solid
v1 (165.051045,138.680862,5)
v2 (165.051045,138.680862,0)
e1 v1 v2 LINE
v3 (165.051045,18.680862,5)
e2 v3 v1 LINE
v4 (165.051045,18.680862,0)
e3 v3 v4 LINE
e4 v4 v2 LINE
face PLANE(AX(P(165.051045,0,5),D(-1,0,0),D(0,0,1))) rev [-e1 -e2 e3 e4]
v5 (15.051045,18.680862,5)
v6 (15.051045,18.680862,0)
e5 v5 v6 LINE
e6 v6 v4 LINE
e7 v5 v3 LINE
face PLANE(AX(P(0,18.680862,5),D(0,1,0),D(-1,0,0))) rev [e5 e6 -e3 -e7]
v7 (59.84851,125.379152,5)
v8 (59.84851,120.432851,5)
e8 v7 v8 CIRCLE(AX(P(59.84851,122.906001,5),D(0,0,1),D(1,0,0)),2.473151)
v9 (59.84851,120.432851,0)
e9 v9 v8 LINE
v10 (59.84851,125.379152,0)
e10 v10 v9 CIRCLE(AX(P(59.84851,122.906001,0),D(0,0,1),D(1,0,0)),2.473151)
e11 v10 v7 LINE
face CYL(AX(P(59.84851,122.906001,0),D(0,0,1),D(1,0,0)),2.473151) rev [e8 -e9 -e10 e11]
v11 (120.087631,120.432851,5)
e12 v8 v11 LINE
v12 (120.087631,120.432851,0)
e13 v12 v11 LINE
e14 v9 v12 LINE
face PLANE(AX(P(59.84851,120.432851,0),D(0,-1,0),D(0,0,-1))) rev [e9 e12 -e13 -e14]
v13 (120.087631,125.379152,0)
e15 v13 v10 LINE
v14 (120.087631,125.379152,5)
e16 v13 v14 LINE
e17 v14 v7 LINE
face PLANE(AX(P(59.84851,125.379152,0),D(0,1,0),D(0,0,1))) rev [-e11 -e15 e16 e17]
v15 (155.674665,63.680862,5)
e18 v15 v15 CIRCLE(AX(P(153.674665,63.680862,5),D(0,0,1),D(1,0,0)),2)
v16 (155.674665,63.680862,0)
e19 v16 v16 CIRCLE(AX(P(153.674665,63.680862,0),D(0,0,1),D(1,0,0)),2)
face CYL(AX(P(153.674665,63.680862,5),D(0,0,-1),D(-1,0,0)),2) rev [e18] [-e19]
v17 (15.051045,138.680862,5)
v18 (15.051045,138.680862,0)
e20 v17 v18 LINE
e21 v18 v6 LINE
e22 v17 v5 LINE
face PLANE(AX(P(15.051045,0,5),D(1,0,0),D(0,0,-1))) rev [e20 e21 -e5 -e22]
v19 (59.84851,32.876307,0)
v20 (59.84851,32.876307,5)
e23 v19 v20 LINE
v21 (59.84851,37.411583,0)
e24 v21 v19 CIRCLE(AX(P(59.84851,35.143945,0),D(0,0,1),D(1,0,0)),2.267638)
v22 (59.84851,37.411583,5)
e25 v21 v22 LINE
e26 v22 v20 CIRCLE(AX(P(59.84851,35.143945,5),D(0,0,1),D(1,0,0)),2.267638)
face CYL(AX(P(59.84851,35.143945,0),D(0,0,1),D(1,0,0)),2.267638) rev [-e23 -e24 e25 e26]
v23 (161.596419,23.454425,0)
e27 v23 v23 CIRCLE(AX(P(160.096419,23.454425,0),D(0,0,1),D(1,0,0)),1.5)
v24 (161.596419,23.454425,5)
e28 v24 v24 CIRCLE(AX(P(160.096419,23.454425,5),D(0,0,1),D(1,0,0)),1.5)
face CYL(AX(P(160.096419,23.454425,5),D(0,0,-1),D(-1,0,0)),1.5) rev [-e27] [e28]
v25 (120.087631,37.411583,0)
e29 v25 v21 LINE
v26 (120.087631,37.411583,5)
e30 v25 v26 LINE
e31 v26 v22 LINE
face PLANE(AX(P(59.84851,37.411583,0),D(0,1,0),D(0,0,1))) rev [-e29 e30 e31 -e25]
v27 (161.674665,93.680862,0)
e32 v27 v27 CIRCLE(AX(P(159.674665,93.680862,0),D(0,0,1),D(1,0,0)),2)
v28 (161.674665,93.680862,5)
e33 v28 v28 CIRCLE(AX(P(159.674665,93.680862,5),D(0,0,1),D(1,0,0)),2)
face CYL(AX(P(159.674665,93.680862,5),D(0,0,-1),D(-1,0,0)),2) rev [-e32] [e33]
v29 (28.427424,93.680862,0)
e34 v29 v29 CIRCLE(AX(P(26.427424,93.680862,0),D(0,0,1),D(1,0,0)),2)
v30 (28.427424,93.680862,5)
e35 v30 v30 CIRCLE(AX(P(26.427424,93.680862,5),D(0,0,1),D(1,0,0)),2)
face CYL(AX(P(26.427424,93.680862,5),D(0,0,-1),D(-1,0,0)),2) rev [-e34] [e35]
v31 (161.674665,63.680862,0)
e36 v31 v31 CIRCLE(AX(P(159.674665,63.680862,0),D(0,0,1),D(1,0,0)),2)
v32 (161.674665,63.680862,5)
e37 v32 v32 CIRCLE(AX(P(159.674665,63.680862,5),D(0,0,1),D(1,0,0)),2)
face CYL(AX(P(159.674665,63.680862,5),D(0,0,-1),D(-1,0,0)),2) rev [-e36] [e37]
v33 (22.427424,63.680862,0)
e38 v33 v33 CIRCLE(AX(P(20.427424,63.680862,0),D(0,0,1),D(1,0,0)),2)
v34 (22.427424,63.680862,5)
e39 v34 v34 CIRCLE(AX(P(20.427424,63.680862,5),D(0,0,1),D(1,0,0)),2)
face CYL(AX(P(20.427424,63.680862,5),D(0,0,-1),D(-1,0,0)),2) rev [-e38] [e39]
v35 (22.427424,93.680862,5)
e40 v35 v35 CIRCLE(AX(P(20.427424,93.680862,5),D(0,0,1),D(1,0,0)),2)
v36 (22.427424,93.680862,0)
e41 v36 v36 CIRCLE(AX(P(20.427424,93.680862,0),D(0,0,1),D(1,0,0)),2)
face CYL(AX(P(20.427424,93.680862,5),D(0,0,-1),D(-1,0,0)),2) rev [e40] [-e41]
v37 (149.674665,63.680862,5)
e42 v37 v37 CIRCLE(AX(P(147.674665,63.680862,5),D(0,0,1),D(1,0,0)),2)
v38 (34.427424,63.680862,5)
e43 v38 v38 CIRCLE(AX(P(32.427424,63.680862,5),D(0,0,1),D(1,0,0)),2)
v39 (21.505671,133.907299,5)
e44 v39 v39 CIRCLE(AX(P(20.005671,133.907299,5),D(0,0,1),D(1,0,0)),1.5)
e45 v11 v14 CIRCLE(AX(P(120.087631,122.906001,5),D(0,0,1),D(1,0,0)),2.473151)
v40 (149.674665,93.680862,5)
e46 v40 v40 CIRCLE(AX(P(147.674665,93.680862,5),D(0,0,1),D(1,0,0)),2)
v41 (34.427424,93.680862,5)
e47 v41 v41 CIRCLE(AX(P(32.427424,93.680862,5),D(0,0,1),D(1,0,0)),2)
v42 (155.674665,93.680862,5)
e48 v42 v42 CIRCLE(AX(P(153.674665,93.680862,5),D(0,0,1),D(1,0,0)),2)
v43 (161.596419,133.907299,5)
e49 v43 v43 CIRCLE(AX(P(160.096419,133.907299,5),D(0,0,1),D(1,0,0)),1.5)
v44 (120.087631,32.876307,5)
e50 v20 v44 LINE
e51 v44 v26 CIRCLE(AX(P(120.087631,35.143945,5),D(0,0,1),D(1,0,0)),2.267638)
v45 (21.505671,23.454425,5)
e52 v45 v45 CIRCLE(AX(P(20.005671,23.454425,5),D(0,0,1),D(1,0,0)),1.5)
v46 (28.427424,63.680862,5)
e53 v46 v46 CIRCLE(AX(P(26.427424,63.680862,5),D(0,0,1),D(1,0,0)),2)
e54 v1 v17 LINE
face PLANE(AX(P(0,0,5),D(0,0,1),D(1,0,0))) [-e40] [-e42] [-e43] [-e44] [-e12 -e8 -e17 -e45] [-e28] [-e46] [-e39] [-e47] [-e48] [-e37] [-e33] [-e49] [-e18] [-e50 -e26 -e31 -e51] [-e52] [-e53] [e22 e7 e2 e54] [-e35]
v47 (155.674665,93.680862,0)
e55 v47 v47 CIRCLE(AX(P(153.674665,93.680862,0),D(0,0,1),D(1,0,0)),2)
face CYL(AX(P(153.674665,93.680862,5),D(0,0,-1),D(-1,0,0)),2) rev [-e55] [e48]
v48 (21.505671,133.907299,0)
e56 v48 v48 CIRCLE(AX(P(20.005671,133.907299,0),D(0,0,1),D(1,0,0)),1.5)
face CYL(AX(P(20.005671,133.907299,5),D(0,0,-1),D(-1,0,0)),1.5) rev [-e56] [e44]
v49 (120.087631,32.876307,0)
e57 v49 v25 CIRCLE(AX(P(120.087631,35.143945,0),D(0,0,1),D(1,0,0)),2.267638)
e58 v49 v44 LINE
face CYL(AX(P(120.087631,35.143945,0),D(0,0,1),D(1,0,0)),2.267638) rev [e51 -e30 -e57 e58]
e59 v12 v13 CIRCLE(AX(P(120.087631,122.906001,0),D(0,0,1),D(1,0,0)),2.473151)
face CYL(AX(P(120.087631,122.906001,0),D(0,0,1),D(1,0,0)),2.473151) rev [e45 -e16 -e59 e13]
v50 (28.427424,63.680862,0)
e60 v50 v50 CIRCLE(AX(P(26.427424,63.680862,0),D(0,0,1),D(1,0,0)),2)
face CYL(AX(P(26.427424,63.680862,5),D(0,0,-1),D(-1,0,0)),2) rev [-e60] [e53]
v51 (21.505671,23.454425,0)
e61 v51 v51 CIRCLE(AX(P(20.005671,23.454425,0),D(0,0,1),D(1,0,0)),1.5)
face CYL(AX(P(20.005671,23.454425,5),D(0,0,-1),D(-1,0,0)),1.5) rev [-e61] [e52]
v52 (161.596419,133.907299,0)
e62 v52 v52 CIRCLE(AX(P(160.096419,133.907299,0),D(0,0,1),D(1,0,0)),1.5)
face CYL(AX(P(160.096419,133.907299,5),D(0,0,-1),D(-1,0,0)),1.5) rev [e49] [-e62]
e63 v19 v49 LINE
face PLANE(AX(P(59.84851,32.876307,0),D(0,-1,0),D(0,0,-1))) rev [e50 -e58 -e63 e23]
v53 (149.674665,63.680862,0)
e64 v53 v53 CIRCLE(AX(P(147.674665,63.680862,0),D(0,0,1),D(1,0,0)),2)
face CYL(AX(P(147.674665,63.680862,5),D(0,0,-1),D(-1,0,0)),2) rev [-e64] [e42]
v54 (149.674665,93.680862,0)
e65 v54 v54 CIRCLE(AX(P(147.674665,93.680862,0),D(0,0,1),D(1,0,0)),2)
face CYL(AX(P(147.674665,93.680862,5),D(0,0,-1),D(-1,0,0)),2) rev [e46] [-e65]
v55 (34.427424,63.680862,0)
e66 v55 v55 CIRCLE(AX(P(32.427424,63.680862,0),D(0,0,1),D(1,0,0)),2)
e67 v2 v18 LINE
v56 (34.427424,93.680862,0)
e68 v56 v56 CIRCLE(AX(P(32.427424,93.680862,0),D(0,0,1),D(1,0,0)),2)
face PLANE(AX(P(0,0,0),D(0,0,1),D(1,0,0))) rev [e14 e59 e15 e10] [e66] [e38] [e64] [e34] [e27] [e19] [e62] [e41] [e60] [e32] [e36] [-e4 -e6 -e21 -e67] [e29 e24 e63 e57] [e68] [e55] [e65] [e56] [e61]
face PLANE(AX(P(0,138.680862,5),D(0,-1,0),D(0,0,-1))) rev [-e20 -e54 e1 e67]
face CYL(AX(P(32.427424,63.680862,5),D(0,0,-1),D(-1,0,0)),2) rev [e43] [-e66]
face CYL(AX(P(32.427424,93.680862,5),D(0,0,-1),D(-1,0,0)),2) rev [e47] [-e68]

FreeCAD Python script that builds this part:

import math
import FreeCAD as App
import Part
import Sketcher

V = App.Vector


def add_polygon(sketch, points):
    """Adds a closed chain of lines whose ends are joined by coincident constraints."""
    first, n = sketch.GeometryCount, len(points)
    for a, b in zip(points, points[1:] + points[:1]):
        sketch.addGeometry(Part.LineSegment(App.Vector(*a, 0), App.Vector(*b, 0)), False)
    for i in range(n):
        sketch.addConstraint(Sketcher.Constraint("Coincident", first + i, 2, first + (i + 1) % n, 1))

doc = App.newDocument("Part")
body = doc.addObject("PartDesign::Body", "Body")

# Sketch on XY plane
sketch1 = doc.addObject("Sketcher::SketchObject", "Sketch")
body.addObject(sketch1)
sketch1.AttachmentSupport = (doc.XY_Plane, [""])
sketch1.MapMode = "FlatFace"
add_polygon(sketch1, [(15.1, 138.7), (15.1, 18.7), (165.1, 18.7), (165.1, 138.7)])  # lines 0-3
sketch1.addGeometry(Part.Circle(V(20, 23.5, 0), V(0, 0, 1), 1.5), False)  # 4
sketch1.addGeometry(Part.Circle(V(20.4, 63.7, 0), V(0, 0, 1), 2), False)  # 5
sketch1.addGeometry(Part.Circle(V(26.4, 63.7, 0), V(0, 0, 1), 2), False)  # 6
sketch1.addGeometry(Part.Circle(V(32.4, 63.7, 0), V(0, 0, 1), 2), False)  # 7
sketch1.addGeometry(Part.Circle(V(160.1, 23.5, 0), V(0, 0, 1), 1.5), False)  # 8
sketch1.addGeometry(Part.Circle(V(147.7, 63.7, 0), V(0, 0, 1), 2), False)  # 9
sketch1.addGeometry(Part.Circle(V(153.7, 63.7, 0), V(0, 0, 1), 2), False)  # 10
sketch1.addGeometry(Part.Circle(V(159.7, 63.7, 0), V(0, 0, 1), 2), False)  # 11
sketch1.addGeometry(Part.Circle(V(20.4, 93.7, 0), V(0, 0, 1), 2), False)  # 12
sketch1.addGeometry(Part.Circle(V(26.4, 93.7, 0), V(0, 0, 1), 2), False)  # 13
sketch1.addGeometry(Part.Circle(V(32.4, 93.7, 0), V(0, 0, 1), 2), False)  # 14
sketch1.addGeometry(Part.Circle(V(20, 133.9, 0), V(0, 0, 1), 1.5), False)  # 15
sketch1.addGeometry(Part.Circle(V(147.7, 93.7, 0), V(0, 0, 1), 2), False)  # 16
sketch1.addGeometry(Part.Circle(V(153.7, 93.7, 0), V(0, 0, 1), 2), False)  # 17
sketch1.addGeometry(Part.Circle(V(159.7, 93.7, 0), V(0, 0, 1), 2), False)  # 18
sketch1.addGeometry(Part.Circle(V(160.1, 133.9, 0), V(0, 0, 1), 1.5), False)  # 19
sketch1.addConstraint(Sketcher.Constraint("Vertical", 0))
sketch1.addConstraint(Sketcher.Constraint("Horizontal", 1))
sketch1.addConstraint(Sketcher.Constraint("Vertical", 2))
sketch1.addConstraint(Sketcher.Constraint("Horizontal", 3))
sketch1.addConstraint(Sketcher.Constraint("Equal", 5, 6))
sketch1.addConstraint(Sketcher.Constraint("Equal", 6, 7))
sketch1.addConstraint(Sketcher.Constraint("Equal", 4, 8))
sketch1.addConstraint(Sketcher.Constraint("Equal", 7, 9))
sketch1.addConstraint(Sketcher.Constraint("Equal", 9, 10))
sketch1.addConstraint(Sketcher.Constraint("Equal", 10, 11))
sketch1.addConstraint(Sketcher.Constraint("Equal", 11, 12))
sketch1.addConstraint(Sketcher.Constraint("Equal", 12, 13))
sketch1.addConstraint(Sketcher.Constraint("Equal", 13, 14))
sketch1.addConstraint(Sketcher.Constraint("Equal", 8, 15))
sketch1.addConstraint(Sketcher.Constraint("Equal", 14, 16))
sketch1.addConstraint(Sketcher.Constraint("Equal", 16, 17))
sketch1.addConstraint(Sketcher.Constraint("Equal", 17, 18))
sketch1.addConstraint(Sketcher.Constraint("Equal", 15, 19))
sketch1.addConstraint(Sketcher.Constraint("Horizontal", 5, 3, 6, 3))
sketch1.addConstraint(Sketcher.Constraint("Horizontal", 6, 3, 7, 3))
sketch1.addConstraint(Sketcher.Constraint("Horizontal", 4, 3, 8, 3))
sketch1.addConstraint(Sketcher.Constraint("Horizontal", 7, 3, 9, 3))
sketch1.addConstraint(Sketcher.Constraint("Horizontal", 9, 3, 10, 3))
sketch1.addConstraint(Sketcher.Constraint("Horizontal", 10, 3, 11, 3))
sketch1.addConstraint(Sketcher.Constraint("Horizontal", 12, 3, 13, 3))
sketch1.addConstraint(Sketcher.Constraint("Horizontal", 13, 3, 14, 3))
sketch1.addConstraint(Sketcher.Constraint("Horizontal", 14, 3, 16, 3))
sketch1.addConstraint(Sketcher.Constraint("Horizontal", 16, 3, 17, 3))
sketch1.addConstraint(Sketcher.Constraint("Horizontal", 17, 3, 18, 3))
sketch1.addConstraint(Sketcher.Constraint("Horizontal", 15, 3, 19, 3))
sketch1.addConstraint(Sketcher.Constraint("Vertical", 5, 3, 12, 3))
sketch1.addConstraint(Sketcher.Constraint("Vertical", 6, 3, 13, 3))
sketch1.addConstraint(Sketcher.Constraint("Vertical", 7, 3, 14, 3))
sketch1.addConstraint(Sketcher.Constraint("Vertical", 4, 3, 15, 3))
sketch1.addConstraint(Sketcher.Constraint("Vertical", 9, 3, 16, 3))
sketch1.addConstraint(Sketcher.Constraint("Vertical", 10, 3, 17, 3))
sketch1.addConstraint(Sketcher.Constraint("Vertical", 11, 3, 18, 3))
sketch1.addConstraint(Sketcher.Constraint("Vertical", 8, 3, 19, 3))
sketch1.addConstraint(Sketcher.Constraint("Diameter", 4, 3.0))
sketch1.addConstraint(Sketcher.Constraint("Diameter", 5, 4.0))
sketch1.addConstraint(Sketcher.Constraint("DistanceX", 1, 1, 1, 2, 150.0))
sketch1.addConstraint(Sketcher.Constraint("DistanceY", 0, 2, 0, 1, 120.0))
sketch1.addConstraint(Sketcher.Constraint("DistanceX", 5, 3, 6, 3, 6.0))
sketch1.addConstraint(Sketcher.Constraint("DistanceX", 6, 3, 7, 3, 6.0))
sketch1.addConstraint(Sketcher.Constraint("DistanceX", 9, 3, 10, 3, 6.0))
sketch1.addConstraint(Sketcher.Constraint("DistanceX", 10, 3, 11, 3, 6.0))
sketch1.addConstraint(Sketcher.Constraint("DistanceY", 5, 3, 12, 3, 30.0))
sketch1.addConstraint(Sketcher.Constraint("DistanceY", 0, 2, 5, 3, 45.0))
sketch1.addConstraint(Sketcher.Constraint("DistanceY", -1, 1, 15, 3, 133.907299))
sketch1.addConstraint(Sketcher.Constraint("DistanceX", -1, 1, 4, 3, 20.005671))
sketch1.addConstraint(Sketcher.Constraint("DistanceY", -1, 1, 5, 3, 63.680862))
sketch1.addConstraint(Sketcher.Constraint("DistanceX", -1, 1, 8, 3, 160.096419))
sketch1.addConstraint(Sketcher.Constraint("DistanceX", 7, 3, 9, 3, 115.247241))
sketch1.addConstraint(Sketcher.Constraint("DistanceX", 0, 2, 5, 3, 5.37638))
sketch1.addConstraint(Sketcher.Constraint("DistanceY", -1, 1, 4, 3, 23.454425))
sketch1.addConstraint(Sketcher.Constraint("DistanceX", -1, 1, 5, 3, 20.427424))
pad1 = doc.addObject("PartDesign::Pad", "Pad")
body.addObject(pad1)
pad1.Profile = sketch1
pad1.Length = 5

# Sketch on XY plane
sketch2 = doc.addObject("Sketcher::SketchObject", "Sketch001")
body.addObject(sketch2)
sketch2.AttachmentSupport = (doc.XY_Plane, [""])
sketch2.MapMode = "FlatFace"
sketch2.AttachmentOffset = App.Placement(V(0, 0, 5), App.Rotation())
sketch2.addGeometry(Part.LineSegment(V(120.1, 125.4, 0), V(59.8, 125.4, 0)), False)
sketch2.addGeometry(Part.ArcOfCircle(Part.Circle(V(59.8, 122.9, 0), V(0, 0, 1), 2.5), math.radians(90), math.radians(270)), False)
sketch2.addGeometry(Part.LineSegment(V(59.8, 120.4, 0), V(120.1, 120.4, 0)), False)
sketch2.addGeometry(Part.ArcOfCircle(Part.Circle(V(120.1, 122.9, 0), V(0, 0, 1), 2.5), math.radians(-90), math.radians(90)), False)
sketch2.addGeometry(Part.LineSegment(V(120.1, 37.4, 0), V(59.8, 37.4, 0)), False)
sketch2.addGeometry(Part.ArcOfCircle(Part.Circle(V(59.8, 35.1, 0), V(0, 0, 1), 2.3), math.radians(90), math.radians(270)), False)
sketch2.addGeometry(Part.LineSegment(V(59.8, 32.9, 0), V(120.1, 32.9, 0)), False)
sketch2.addGeometry(Part.ArcOfCircle(Part.Circle(V(120.1, 35.1, 0), V(0, 0, 1), 2.3), math.radians(-90), math.radians(90)), False)
sketch2.addConstraint(Sketcher.Constraint("Tangent", 0, 2, 1, 1))
sketch2.addConstraint(Sketcher.Constraint("Tangent", 1, 2, 2, 1))
sketch2.addConstraint(Sketcher.Constraint("Tangent", 2, 2, 3, 1))
sketch2.addConstraint(Sketcher.Constraint("Tangent", 3, 2, 0, 1))
sketch2.addConstraint(Sketcher.Constraint("Tangent", 4, 2, 5, 1))
sketch2.addConstraint(Sketcher.Constraint("Tangent", 5, 2, 6, 1))
sketch2.addConstraint(Sketcher.Constraint("Tangent", 6, 2, 7, 1))
sketch2.addConstraint(Sketcher.Constraint("Tangent", 7, 2, 4, 1))
sketch2.addConstraint(Sketcher.Constraint("Horizontal", 0))
sketch2.addConstraint(Sketcher.Constraint("Horizontal", 2))
sketch2.addConstraint(Sketcher.Constraint("Horizontal", 4))
sketch2.addConstraint(Sketcher.Constraint("Horizontal", 6))
sketch2.addConstraint(Sketcher.Constraint("Vertical", 1, 3, 5, 3))
sketch2.addConstraint(Sketcher.Constraint("Vertical", 3, 3, 7, 3))
sketch2.addConstraint(Sketcher.Constraint("Radius", 1, 2.473151))
sketch2.addConstraint(Sketcher.Constraint("DistanceY", -1, 1, 1, 3, 122.906001))
sketch2.addConstraint(Sketcher.Constraint("Radius", 5, 2.267638))
sketch2.addConstraint(Sketcher.Constraint("DistanceX", 0, 2, 0, 1, 60.23912))
sketch2.addConstraint(Sketcher.Constraint("DistanceX", -1, 1, 1, 3, 59.84851))
sketch2.addConstraint(Sketcher.Constraint("DistanceY", 4, 2, 1, 3, 85.494419))
pocket1 = doc.addObject("PartDesign::Pocket", "Pocket")
body.addObject(pocket1)
pocket1.Profile = sketch2
pocket1.Type = "ThroughAll"

doc.recompute()
